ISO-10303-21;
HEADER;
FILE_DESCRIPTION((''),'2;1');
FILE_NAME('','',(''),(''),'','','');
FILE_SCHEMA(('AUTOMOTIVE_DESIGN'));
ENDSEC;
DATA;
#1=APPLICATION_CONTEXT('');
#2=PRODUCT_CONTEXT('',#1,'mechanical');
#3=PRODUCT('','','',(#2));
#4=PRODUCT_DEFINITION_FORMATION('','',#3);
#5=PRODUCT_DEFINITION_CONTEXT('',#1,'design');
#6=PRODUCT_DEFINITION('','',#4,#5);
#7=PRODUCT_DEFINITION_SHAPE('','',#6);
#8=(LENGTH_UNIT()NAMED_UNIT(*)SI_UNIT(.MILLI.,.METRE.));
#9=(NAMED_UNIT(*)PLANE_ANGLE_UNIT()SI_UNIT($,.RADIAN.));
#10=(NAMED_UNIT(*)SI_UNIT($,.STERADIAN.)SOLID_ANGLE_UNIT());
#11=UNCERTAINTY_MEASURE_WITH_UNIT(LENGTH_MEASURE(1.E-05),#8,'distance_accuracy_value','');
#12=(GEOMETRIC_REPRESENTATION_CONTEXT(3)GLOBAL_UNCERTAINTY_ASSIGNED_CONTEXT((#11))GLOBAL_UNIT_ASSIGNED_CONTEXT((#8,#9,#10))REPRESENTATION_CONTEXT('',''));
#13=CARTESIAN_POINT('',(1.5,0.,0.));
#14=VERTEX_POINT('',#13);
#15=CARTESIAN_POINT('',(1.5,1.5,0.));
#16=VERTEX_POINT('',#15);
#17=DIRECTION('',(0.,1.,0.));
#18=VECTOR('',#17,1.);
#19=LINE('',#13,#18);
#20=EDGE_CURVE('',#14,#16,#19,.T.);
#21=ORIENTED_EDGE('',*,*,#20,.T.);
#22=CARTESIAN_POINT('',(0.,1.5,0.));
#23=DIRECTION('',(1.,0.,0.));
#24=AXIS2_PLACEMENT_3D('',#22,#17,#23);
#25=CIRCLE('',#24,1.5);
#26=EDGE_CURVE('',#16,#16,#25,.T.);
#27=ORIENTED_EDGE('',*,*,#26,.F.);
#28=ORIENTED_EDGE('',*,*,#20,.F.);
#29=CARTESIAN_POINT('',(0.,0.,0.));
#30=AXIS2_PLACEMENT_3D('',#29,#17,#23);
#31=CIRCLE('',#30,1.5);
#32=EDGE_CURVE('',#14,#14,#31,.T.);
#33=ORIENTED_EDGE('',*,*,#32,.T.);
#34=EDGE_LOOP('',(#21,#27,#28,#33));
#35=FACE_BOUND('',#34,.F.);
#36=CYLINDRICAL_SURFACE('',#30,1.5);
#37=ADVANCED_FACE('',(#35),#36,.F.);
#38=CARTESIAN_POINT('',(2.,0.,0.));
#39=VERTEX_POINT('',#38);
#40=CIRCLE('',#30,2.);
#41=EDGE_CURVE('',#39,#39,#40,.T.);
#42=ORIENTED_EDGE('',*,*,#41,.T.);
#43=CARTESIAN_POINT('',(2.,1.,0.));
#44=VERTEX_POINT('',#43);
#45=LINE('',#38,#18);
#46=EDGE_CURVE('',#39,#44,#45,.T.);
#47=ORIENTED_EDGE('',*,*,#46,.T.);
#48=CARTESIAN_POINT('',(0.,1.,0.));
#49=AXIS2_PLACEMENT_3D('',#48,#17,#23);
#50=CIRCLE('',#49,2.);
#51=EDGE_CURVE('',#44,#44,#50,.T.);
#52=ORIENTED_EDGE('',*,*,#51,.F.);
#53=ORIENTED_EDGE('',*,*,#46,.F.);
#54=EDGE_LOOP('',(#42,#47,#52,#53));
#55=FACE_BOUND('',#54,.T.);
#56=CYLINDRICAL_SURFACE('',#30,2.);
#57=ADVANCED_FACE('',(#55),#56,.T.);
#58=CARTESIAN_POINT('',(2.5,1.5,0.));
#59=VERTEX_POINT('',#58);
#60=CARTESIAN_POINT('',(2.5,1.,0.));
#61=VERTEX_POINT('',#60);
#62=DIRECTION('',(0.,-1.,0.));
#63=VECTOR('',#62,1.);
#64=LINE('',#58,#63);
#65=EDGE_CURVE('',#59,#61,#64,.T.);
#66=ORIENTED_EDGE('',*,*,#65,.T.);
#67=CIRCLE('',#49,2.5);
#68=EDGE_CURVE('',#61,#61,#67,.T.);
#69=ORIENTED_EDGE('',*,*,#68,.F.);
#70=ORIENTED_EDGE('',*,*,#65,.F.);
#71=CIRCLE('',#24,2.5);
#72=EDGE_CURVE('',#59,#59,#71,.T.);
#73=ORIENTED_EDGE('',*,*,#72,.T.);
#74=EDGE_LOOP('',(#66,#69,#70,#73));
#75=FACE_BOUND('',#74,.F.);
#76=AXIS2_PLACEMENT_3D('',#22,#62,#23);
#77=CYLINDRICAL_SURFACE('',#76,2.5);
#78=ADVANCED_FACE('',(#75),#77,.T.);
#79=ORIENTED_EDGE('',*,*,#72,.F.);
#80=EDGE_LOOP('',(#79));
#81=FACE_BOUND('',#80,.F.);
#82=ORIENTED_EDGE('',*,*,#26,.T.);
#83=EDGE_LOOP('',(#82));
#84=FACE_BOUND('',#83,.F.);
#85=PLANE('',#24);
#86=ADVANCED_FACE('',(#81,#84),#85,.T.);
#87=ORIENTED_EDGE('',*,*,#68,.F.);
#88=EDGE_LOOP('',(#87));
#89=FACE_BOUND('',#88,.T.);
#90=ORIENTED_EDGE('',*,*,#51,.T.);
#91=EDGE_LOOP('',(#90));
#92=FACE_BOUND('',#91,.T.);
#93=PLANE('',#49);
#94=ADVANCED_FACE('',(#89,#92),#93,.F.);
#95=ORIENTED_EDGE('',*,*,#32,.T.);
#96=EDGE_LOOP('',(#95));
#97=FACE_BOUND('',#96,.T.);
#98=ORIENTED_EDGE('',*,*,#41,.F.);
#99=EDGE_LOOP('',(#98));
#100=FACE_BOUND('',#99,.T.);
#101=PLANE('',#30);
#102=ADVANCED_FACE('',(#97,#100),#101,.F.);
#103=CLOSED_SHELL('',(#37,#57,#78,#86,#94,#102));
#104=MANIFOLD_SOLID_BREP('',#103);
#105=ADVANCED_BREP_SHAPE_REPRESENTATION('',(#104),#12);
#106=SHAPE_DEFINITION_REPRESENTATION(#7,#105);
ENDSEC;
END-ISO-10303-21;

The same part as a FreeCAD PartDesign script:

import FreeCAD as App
import Part
import Sketcher
from FreeCAD import Vector


def add_polygon(sketch, points):
    """Adds a closed chain of lines whose ends are joined by coincident constraints."""
    first, n = sketch.GeometryCount, len(points)
    for a, b in zip(points, points[1:] + points[:1]):
        sketch.addGeometry(Part.LineSegment(App.Vector(*a, 0), App.Vector(*b, 0)), False)
    for i in range(n):
        sketch.addConstraint(Sketcher.Constraint("Coincident", first + i, 2, first + (i + 1) % n, 1))

doc = App.newDocument("Part")
body = doc.addObject("PartDesign::Body", "Body")

# Sketch on XY plane
sketch1 = body.newObject("Sketcher::SketchObject", "Sketch")
sketch1.AttachmentSupport = (doc.getObject("XY_Plane"), [""])
sketch1.MapMode = "FlatFace"
add_polygon(sketch1, [(1.5, 1.5), (1.5, 0), (2, 0), (2, 1), (2.5, 1), (2.5, 1.5)])  # lines 0-5
sketch1.addConstraint(Sketcher.Constraint("Vertical", 0))
sketch1.addConstraint(Sketcher.Constraint("Horizontal", 1))
sketch1.addConstraint(Sketcher.Constraint("Vertical", 2))
sketch1.addConstraint(Sketcher.Constraint("Horizontal", 3))
sketch1.addConstraint(Sketcher.Constraint("Vertical", 4))
sketch1.addConstraint(Sketcher.Constraint("Horizontal", 5))
sketch1.addConstraint(Sketcher.Constraint("PointOnObject", 0, 2, -1))
sketch1.addConstraint(Sketcher.Constraint("Equal", 1, 3))
sketch1.addConstraint(Sketcher.Constraint("Equal", 5, 2))
sketch1.addConstraint(Sketcher.Constraint("Equal", 3, 4))
sketch1.addConstraint(Sketcher.Constraint("DistanceX", 5, 2, 5, 1, 1.0))
sketch1.addConstraint(Sketcher.Constraint("DistanceX", -1, 1, 0, 2, 1.5))
revolution = body.newObject("PartDesign::Revolution", "Revolution")
revolution.Profile = sketch1
revolution.ReferenceAxis = (sketch1, ["V_Axis"])
revolution.Angle = 360

doc.recompute()
